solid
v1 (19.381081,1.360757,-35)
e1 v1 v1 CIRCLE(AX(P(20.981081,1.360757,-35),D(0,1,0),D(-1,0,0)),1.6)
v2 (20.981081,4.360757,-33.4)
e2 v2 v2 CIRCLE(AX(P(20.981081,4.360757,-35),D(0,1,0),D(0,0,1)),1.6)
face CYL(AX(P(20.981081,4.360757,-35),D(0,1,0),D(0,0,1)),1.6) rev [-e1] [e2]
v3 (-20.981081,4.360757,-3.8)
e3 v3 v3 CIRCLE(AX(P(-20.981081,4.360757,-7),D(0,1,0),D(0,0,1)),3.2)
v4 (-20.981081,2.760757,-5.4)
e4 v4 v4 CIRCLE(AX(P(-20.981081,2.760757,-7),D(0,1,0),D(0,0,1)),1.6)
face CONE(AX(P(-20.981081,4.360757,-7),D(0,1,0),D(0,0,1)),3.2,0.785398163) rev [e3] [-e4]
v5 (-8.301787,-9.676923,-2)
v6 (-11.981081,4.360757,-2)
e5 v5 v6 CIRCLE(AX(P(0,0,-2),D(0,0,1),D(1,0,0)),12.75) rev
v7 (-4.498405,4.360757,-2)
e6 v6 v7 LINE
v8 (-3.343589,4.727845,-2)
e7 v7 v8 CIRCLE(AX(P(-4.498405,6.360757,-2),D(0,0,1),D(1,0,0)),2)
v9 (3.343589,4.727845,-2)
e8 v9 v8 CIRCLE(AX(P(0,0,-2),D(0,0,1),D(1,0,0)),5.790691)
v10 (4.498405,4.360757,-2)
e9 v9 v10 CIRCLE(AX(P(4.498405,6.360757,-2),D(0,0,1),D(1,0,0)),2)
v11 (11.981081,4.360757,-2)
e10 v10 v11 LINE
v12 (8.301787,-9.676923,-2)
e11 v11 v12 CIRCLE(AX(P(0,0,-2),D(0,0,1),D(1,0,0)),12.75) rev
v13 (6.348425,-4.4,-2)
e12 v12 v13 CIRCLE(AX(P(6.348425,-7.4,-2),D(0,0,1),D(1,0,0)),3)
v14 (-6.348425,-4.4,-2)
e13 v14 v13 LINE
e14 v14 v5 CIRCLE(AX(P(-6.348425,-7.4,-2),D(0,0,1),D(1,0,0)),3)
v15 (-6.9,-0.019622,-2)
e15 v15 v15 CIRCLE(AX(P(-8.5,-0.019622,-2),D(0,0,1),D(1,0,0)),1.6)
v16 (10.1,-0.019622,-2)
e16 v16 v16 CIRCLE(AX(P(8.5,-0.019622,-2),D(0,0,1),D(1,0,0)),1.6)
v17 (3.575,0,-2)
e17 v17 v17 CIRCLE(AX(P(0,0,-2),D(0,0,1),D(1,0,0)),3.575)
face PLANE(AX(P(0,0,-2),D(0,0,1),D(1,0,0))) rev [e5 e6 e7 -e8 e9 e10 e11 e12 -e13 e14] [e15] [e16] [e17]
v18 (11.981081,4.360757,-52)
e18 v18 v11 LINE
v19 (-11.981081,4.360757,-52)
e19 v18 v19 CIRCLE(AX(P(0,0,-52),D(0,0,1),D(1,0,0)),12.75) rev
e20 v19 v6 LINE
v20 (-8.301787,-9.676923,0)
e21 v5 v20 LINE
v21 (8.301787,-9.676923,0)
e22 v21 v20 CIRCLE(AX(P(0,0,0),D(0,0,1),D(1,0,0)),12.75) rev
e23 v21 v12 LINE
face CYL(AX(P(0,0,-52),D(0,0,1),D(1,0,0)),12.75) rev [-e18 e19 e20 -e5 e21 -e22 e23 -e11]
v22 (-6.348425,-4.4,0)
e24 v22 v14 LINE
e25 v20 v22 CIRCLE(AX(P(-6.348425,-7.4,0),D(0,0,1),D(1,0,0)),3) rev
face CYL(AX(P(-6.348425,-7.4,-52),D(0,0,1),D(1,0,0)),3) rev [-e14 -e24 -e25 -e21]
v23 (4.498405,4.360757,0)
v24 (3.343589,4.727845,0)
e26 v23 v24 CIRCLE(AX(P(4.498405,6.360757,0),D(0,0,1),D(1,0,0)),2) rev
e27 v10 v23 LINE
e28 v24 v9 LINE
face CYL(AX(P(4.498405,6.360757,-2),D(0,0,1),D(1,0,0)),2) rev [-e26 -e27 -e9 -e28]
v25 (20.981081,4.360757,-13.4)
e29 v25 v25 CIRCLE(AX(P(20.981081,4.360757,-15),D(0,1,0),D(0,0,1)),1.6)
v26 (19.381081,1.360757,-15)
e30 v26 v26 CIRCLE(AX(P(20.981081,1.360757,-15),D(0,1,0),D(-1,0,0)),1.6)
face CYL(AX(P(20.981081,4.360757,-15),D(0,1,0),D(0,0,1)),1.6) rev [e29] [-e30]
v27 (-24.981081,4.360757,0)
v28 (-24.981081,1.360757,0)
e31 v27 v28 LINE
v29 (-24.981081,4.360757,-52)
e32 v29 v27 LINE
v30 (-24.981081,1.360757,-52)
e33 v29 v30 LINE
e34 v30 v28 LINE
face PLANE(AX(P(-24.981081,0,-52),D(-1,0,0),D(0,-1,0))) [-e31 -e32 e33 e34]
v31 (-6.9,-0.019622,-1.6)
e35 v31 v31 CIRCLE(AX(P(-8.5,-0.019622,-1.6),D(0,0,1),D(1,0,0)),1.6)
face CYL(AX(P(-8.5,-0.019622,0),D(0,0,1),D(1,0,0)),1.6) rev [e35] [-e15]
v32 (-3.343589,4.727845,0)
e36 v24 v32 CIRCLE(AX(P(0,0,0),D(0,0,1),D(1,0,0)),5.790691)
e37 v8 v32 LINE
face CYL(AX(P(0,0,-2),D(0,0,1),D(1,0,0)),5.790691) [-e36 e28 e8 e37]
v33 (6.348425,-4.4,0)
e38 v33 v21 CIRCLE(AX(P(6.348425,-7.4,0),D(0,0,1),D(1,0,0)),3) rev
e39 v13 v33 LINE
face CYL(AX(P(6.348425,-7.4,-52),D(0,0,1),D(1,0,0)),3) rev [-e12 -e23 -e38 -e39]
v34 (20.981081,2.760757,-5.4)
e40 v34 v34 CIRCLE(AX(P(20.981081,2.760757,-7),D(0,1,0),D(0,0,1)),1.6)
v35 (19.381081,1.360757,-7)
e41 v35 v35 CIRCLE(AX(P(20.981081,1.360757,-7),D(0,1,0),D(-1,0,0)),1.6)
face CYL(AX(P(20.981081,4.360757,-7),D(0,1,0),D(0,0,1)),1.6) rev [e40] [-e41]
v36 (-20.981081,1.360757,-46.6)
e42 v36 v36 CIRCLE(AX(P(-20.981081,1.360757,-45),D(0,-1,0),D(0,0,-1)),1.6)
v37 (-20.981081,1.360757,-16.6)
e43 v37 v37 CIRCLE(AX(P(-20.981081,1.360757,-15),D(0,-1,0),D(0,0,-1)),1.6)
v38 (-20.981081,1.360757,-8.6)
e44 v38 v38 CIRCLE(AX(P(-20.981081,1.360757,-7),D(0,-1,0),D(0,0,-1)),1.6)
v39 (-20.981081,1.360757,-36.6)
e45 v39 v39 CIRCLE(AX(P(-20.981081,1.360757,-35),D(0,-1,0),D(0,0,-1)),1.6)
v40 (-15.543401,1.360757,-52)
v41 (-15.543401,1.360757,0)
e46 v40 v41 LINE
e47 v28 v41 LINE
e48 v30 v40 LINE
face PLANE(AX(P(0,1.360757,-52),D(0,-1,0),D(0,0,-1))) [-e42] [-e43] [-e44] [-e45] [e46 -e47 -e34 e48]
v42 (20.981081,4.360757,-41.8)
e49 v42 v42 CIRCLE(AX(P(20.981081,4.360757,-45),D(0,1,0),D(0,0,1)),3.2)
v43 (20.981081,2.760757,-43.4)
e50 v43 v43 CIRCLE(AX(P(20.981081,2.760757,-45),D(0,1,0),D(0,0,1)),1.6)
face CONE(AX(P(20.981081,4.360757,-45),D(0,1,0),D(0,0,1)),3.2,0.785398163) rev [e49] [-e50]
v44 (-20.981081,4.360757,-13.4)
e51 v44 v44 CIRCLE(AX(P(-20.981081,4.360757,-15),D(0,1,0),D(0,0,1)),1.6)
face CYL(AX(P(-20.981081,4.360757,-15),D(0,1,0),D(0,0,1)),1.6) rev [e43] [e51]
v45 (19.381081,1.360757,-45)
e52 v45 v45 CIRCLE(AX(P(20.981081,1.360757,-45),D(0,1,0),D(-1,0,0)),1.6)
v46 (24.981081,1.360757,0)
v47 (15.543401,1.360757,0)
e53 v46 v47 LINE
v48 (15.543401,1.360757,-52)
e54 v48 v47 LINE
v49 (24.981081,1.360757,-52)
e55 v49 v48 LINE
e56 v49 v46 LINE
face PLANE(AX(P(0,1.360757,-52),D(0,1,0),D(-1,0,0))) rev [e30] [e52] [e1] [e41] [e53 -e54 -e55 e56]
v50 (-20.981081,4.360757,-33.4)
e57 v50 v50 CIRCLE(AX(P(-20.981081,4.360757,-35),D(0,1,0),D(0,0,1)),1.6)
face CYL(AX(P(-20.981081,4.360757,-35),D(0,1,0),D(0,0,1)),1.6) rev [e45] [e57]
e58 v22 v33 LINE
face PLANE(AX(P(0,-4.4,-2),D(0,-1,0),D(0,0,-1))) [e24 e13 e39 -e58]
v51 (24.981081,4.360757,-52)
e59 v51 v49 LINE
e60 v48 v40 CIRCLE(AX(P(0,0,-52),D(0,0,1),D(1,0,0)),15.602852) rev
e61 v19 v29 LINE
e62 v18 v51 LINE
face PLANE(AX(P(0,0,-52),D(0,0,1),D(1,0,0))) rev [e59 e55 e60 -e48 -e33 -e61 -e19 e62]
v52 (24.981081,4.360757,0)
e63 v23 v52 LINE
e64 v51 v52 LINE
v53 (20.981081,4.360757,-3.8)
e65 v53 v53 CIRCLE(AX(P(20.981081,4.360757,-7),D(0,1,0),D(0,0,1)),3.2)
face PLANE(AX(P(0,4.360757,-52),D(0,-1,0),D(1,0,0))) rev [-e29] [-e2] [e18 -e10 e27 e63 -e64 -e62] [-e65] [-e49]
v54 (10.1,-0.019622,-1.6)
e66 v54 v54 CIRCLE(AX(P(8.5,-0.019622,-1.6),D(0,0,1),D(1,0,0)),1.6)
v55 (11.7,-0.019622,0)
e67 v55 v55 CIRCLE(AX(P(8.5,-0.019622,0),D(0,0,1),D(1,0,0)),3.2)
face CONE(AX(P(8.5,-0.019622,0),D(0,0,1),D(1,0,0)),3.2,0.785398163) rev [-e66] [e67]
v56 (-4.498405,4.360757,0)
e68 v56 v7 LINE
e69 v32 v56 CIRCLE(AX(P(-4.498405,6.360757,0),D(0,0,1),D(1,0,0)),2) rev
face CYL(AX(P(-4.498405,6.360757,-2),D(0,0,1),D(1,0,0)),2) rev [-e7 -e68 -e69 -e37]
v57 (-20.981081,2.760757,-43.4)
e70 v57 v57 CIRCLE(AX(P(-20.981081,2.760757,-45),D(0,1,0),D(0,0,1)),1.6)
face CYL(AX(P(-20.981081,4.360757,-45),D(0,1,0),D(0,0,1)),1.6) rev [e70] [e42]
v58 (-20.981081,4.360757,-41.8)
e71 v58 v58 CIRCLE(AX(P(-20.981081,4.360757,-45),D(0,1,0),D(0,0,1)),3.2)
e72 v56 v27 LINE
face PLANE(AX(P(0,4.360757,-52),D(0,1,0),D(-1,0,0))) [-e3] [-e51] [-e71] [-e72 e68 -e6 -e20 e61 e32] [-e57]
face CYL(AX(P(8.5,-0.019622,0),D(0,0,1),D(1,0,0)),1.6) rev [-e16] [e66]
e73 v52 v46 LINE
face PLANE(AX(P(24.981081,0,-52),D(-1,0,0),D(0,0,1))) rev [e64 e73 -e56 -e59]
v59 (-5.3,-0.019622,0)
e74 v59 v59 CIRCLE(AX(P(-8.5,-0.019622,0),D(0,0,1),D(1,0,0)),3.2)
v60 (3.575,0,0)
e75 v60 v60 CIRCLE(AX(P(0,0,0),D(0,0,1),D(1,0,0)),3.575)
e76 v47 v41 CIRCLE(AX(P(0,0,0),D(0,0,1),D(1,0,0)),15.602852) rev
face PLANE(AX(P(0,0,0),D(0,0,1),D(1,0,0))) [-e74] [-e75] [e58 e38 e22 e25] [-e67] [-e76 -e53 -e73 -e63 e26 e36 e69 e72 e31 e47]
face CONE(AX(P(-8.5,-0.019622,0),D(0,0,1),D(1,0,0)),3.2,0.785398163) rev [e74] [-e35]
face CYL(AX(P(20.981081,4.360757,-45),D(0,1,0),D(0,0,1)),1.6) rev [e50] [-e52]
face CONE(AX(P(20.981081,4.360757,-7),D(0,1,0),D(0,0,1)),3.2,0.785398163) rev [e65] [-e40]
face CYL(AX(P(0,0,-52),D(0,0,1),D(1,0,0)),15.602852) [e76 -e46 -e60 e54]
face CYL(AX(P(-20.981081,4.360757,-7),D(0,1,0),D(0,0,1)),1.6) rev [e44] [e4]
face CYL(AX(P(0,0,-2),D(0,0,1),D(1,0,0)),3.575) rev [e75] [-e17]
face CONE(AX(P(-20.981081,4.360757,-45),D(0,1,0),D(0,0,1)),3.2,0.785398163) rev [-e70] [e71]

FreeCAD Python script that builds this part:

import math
import FreeCAD as App
import Part
import Sketcher

V = App.Vector


def edges_at(feature, points):
    """Names of the edges that pass closest to the given points."""
    edges = feature.Shape.Edges
    near = lambda p: min(range(len(edges)), key=lambda i: edges[i].distToShape(Part.Vertex(*p))[0])
    return sorted({f"Edge{near(p) + 1}" for p in points})

doc = App.newDocument("Part")
params = doc.addObject("Spreadsheet::Sheet", "Params")
for row, (alias, value) in enumerate([
    ("sketch1_width", "13 mm"),
    ("sketch1_height", "3 mm"),
    ("sketch1_radius", "12.75 mm"),
    ("pad1_length", "52 mm"),
    ("sketch2_diameter", "7.15 mm"),
    ("sketch2_radius", "12.75 mm"),
    ("pad2_length", "2 mm"),
    ("fillet_radius", "2 mm"),
    ("sketch3_diameter", "3.2 mm"),
    ("hole_diameter", "3.2 mm"),
    ("hole_csink_diameter", "6.4 mm"),
    ("sketch4_diameter", "3.2 mm"),
    ("hole2_diameter", "3.2 mm"),
    ("sketch5_diameter", "3.2 mm"),
    ("hole3_diameter", "3.2 mm"),
    ("hole3_csink_diameter", "6.4 mm"),
    ("fillet2_radius", "3 mm"),
], start=1):
    params.set(f"A{row}", alias)
    params.set(f"B{row}", "=" + value)
    params.setAlias(f"B{row}", alias)

body = doc.addObject("PartDesign::Body", "Body")

# Sketch on XY plane
sketch1 = body.newObject("Sketcher::SketchObject", "Sketch")
sketch1.AttachmentSupport = (doc.getObject("XY_Plane"), [""])
sketch1.MapMode = "FlatFace"
sketch1.addGeometry([
    Part.ArcOfCircle(Part.Circle(V(0, 0, 0), V(0, 0, 1), 15.6), math.radians(175), math.radians(365)),  # 0
    Part.LineSegment(V(15.5, 1.4, 0), V(25, 1.4, 0)),  # 1
    Part.LineSegment(V(25, 1.4, 0), V(25, 4.4, 0)),  # 2
    Part.LineSegment(V(25, 4.4, 0), V(12, 4.4, 0)),  # 3
    Part.ArcOfCircle(Part.Circle(V(0, 0, 0), V(0, 0, 1), 12.8), math.radians(160), math.radians(380)),  # 4
    Part.LineSegment(V(-12, 4.4, 0), V(-25, 4.4, 0)),  # 5
    Part.LineSegment(V(-25, 4.4, 0), V(-25, 1.4, 0)),  # 6
    Part.LineSegment(V(-25, 1.4, 0), V(-15.5, 1.4, 0)),  # 7
], False)
sketch1.addConstraint([
    Sketcher.Constraint("Coincident", 0, 2, 1, 1),
    Sketcher.Constraint("Coincident", 1, 2, 2, 1),
    Sketcher.Constraint("Coincident", 2, 2, 3, 1),
    Sketcher.Constraint("Coincident", 3, 2, 4, 2),
    Sketcher.Constraint("Coincident", 4, 1, 5, 1),
    Sketcher.Constraint("Coincident", 5, 2, 6, 1),
    Sketcher.Constraint("Coincident", 6, 2, 7, 1),
    Sketcher.Constraint("Coincident", 7, 2, 0, 1),
    Sketcher.Constraint("Horizontal", 1),
    Sketcher.Constraint("Vertical", 2),
    Sketcher.Constraint("Horizontal", 3),
    Sketcher.Constraint("Horizontal", 5),
    Sketcher.Constraint("Vertical", 6),
    Sketcher.Constraint("Horizontal", 7),
    Sketcher.Constraint("Coincident", 0, 3, -1, 1),
    Sketcher.Constraint("Coincident", 4, 3, -1, 1),
    Sketcher.Constraint("Symmetric", 2, 2, 5, 2, -2),
    Sketcher.Constraint("Horizontal", 1, 2, 6, 2),
    Sketcher.Constraint("DistanceX", 3, 2, 3, 1, 13.0),
    Sketcher.Constraint("DistanceY", 2, 1, 2, 2, 3.0),
    Sketcher.Constraint("Radius", 4, 12.75),
    Sketcher.Constraint("Radius", 0, 15.602852),
    Sketcher.Constraint("DistanceX", 1, 1, 1, 2, 9.43768),
])
sketch1.setExpression("Constraints[18]", "Params.sketch1_width")
sketch1.setExpression("Constraints[19]", "Params.sketch1_height")
sketch1.setExpression("Constraints[20]", "Params.sketch1_radius")
pad1 = body.newObject("PartDesign::Pad", "Pad")
pad1.Profile = sketch1
pad1.setExpression("Length", "Params.pad1_length")
pad1.Reversed = True

# Sketch on XY plane
sketch2 = body.newObject("Sketcher::SketchObject", "Sketch001")
sketch2.AttachmentSupport = (doc.getObject("XY_Plane"), [""])
sketch2.MapMode = "FlatFace"
sketch2.addGeometry([
    Part.LineSegment(V(-3.8, 4.4, 0), V(-12, 4.4, 0)),  # 0
    Part.ArcOfCircle(Part.Circle(V(0, 0, 0), V(0, 0, 1), 12.7), math.radians(160), math.radians(200)),  # 1
    Part.LineSegment(V(-12, -4.4, 0), V(12, -4.4, 0)),  # 2
    Part.ArcOfCircle(Part.Circle(V(0, 0, 0), V(0, 0, 1), 12.7), math.radians(-20), math.radians(20)),  # 3
    Part.LineSegment(V(12, 4.4, 0), V(3.8, 4.4, 0)),  # 4
    Part.ArcOfCircle(Part.Circle(V(0, 0, 0), V(0, 0, 1), 5.8), math.radians(49), math.radians(131)),  # 5
    Part.Circle(V(0, 0, 0), V(0, 0, 1), 3.6),  # 6
], False)
sketch2.addConstraint([
    Sketcher.Constraint("Coincident", 0, 2, 1, 1),
    Sketcher.Constraint("Coincident", 1, 2, 2, 1),
    Sketcher.Constraint("Coincident", 2, 2, 3, 1),
    Sketcher.Constraint("Coincident", 3, 2, 4, 1),
    Sketcher.Constraint("Coincident", 4, 2, 5, 1),
    Sketcher.Constraint("Coincident", 5, 2, 0, 1),
    Sketcher.Constraint("Horizontal", 0),
    Sketcher.Constraint("Horizontal", 2),
    Sketcher.Constraint("Horizontal", 4),
    Sketcher.Constraint("Coincident", 1, 3, -1, 1),
    Sketcher.Constraint("Coincident", 3, 3, -1, 1),
    Sketcher.Constraint("Coincident", 5, 3, -1, 1),
    Sketcher.Constraint("Coincident", 6, 3, -1, 1),
    Sketcher.Constraint("Equal", 1, 3),
    Sketcher.Constraint("Horizontal", 0, 2, 3, 2),
    Sketcher.Constraint("Diameter", 6, 7.15),
    Sketcher.Constraint("Radius", 1, 12.75),
    Sketcher.Constraint("DistanceY", 1, 2, -1, 1, 4.4),
    Sketcher.Constraint("Radius", 5, 5.790691),
    Sketcher.Constraint("DistanceX", 0, 2, 0, 1, 8.171106),
])
sketch2.setExpression("Constraints[15]", "Params.sketch2_diameter")
sketch2.setExpression("Constraints[16]", "Params.sketch2_radius")
pad2 = body.newObject("PartDesign::Pad", "Pad001")
pad2.Profile = sketch2
pad2.setExpression("Length", "Params.pad2_length")
pad2.Reversed = True
doc.recompute()

fillet = body.newObject("PartDesign::Fillet", "Fillet")
fillet.Base = (pad2, edges_at(pad2, [(-3.81, 4.361, -1), (3.81, 4.361, -1)]))
fillet.setExpression("Radius", "Params.fillet_radius")

# Sketch on XY plane
sketch3 = body.newObject("Sketcher::SketchObject", "Sketch002")
sketch3.AttachmentSupport = (doc.getObject("XY_Plane"), [""])
sketch3.MapMode = "FlatFace"
sketch3.addGeometry([
    Part.Circle(V(-8.5, 0, 0), V(0, 0, 1), 1.6),
    Part.Circle(V(8.5, 0, 0), V(0, 0, 1), 1.6),
], False)
sketch3.addConstraint([
    Sketcher.Constraint("Equal", 0, 1),
    Sketcher.Constraint("Symmetric", 0, 3, 1, 3, -2),
    Sketcher.Constraint("Diameter", 0, 3.2),
    Sketcher.Constraint("DistanceX", 0, 3, 1, 3, 17.0),
    Sketcher.Constraint("DistanceY", 0, 3, -1, 1, 0.019622),
])
sketch3.setExpression("Constraints[2]", "Params.sketch3_diameter")
doc.recompute()
hole = body.newObject("PartDesign::Hole", "Hole")
hole.Profile = sketch3
hole.ThreadType = "None"
hole.setExpression("Diameter", "Params.hole_diameter")
hole.DepthType = "ThroughAll"
hole.HoleCutType = "Countersink"
hole.setExpression("HoleCutDiameter", "Params.hole_csink_diameter")
hole.HoleCutCountersinkAngle = 90

# Sketch on XZ plane
sketch4 = body.newObject("Sketcher::SketchObject", "Sketch003")
sketch4.AttachmentSupport = (doc.getObject("XZ_Plane"), [""])
sketch4.MapMode = "FlatFace"
sketch4.AttachmentOffset = App.Placement(V(0, 0, -4.360757), App.Rotation())
sketch4.addGeometry([
    Part.Circle(V(-21, -35, 0), V(0, 0, 1), 1.6),
    Part.Circle(V(-21, -15, 0), V(0, 0, 1), 1.6),
    Part.Circle(V(21, -15, 0), V(0, 0, 1), 1.6),
    Part.Circle(V(21, -35, 0), V(0, 0, 1), 1.6),
], False)
sketch4.addConstraint([
    Sketcher.Constraint("Equal", 0, 1),
    Sketcher.Constraint("Equal", 1, 2),
    Sketcher.Constraint("Equal", 2, 3),
    Sketcher.Constraint("Symmetric", 1, 3, 2, 3, -2),
    Sketcher.Constraint("Symmetric", 0, 3, 3, 3, -2),
    Sketcher.Constraint("Vertical", 0, 3, 1, 3),
    Sketcher.Constraint("Diameter", 0, 3.2),
    Sketcher.Constraint("DistanceY", 0, 3, -1, 1, 35.0),
    Sketcher.Constraint("DistanceY", 1, 3, -1, 1, 15.0),
    Sketcher.Constraint("DistanceX", 0, 3, -1, 1, 20.981081),
])
sketch4.setExpression("Constraints[6]", "Params.sketch4_diameter")
doc.recompute()
hole2 = body.newObject("PartDesign::Hole", "Hole001")
hole2.Profile = sketch4
hole2.ThreadType = "None"
hole2.setExpression("Diameter", "Params.hole2_diameter")
hole2.DepthType = "ThroughAll"
hole2.Reversed = True

# Sketch on XZ plane
sketch5 = body.newObject("Sketcher::SketchObject", "Sketch004")
sketch5.AttachmentSupport = (doc.getObject("XZ_Plane"), [""])
sketch5.MapMode = "FlatFace"
sketch5.AttachmentOffset = App.Placement(V(0, 0, -4.360757), App.Rotation())
sketch5.addGeometry([
    Part.Circle(V(-21, -7, 0), V(0, 0, 1), 1.6),
    Part.Circle(V(-21, -45, 0), V(0, 0, 1), 1.6),
    Part.Circle(V(21, -45, 0), V(0, 0, 1), 1.6),
    Part.Circle(V(21, -7, 0), V(0, 0, 1), 1.6),
], False)
sketch5.addConstraint([
    Sketcher.Constraint("Equal", 0, 1),
    Sketcher.Constraint("Equal", 1, 2),
    Sketcher.Constraint("Equal", 2, 3),
    Sketcher.Constraint("Symmetric", 1, 3, 2, 3, -2),
    Sketcher.Constraint("Symmetric", 0, 3, 3, 3, -2),
    Sketcher.Constraint("Vertical", 0, 3, 1, 3),
    Sketcher.Constraint("Diameter", 0, 3.2),
    Sketcher.Constraint("DistanceY", 0, 3, -1, 1, 7.0),
    Sketcher.Constraint("DistanceY", 1, 3, -1, 1, 45.0),
    Sketcher.Constraint("DistanceX", 0, 3, -1, 1, 20.981081),
])
sketch5.setExpression("Constraints[6]", "Params.sketch5_diameter")
doc.recompute()
hole3 = body.newObject("PartDesign::Hole", "Hole002")
hole3.Profile = sketch5
hole3.ThreadType = "None"
hole3.setExpression("Diameter", "Params.hole3_diameter")
hole3.DepthType = "ThroughAll"
hole3.HoleCutType = "Countersink"
hole3.setExpression("HoleCutDiameter", "Params.hole3_csink_diameter")
hole3.HoleCutCountersinkAngle = 90
hole3.Reversed = True
doc.recompute()

fillet2 = body.newObject("PartDesign::Fillet", "Fillet001")
fillet2.Base = (hole3, edges_at(hole3, [(11.967, -4.4, -1), (-11.967, -4.4, -1)]))
fillet2.setExpression("Radius", "Params.fillet2_radius")

doc.recompute()
